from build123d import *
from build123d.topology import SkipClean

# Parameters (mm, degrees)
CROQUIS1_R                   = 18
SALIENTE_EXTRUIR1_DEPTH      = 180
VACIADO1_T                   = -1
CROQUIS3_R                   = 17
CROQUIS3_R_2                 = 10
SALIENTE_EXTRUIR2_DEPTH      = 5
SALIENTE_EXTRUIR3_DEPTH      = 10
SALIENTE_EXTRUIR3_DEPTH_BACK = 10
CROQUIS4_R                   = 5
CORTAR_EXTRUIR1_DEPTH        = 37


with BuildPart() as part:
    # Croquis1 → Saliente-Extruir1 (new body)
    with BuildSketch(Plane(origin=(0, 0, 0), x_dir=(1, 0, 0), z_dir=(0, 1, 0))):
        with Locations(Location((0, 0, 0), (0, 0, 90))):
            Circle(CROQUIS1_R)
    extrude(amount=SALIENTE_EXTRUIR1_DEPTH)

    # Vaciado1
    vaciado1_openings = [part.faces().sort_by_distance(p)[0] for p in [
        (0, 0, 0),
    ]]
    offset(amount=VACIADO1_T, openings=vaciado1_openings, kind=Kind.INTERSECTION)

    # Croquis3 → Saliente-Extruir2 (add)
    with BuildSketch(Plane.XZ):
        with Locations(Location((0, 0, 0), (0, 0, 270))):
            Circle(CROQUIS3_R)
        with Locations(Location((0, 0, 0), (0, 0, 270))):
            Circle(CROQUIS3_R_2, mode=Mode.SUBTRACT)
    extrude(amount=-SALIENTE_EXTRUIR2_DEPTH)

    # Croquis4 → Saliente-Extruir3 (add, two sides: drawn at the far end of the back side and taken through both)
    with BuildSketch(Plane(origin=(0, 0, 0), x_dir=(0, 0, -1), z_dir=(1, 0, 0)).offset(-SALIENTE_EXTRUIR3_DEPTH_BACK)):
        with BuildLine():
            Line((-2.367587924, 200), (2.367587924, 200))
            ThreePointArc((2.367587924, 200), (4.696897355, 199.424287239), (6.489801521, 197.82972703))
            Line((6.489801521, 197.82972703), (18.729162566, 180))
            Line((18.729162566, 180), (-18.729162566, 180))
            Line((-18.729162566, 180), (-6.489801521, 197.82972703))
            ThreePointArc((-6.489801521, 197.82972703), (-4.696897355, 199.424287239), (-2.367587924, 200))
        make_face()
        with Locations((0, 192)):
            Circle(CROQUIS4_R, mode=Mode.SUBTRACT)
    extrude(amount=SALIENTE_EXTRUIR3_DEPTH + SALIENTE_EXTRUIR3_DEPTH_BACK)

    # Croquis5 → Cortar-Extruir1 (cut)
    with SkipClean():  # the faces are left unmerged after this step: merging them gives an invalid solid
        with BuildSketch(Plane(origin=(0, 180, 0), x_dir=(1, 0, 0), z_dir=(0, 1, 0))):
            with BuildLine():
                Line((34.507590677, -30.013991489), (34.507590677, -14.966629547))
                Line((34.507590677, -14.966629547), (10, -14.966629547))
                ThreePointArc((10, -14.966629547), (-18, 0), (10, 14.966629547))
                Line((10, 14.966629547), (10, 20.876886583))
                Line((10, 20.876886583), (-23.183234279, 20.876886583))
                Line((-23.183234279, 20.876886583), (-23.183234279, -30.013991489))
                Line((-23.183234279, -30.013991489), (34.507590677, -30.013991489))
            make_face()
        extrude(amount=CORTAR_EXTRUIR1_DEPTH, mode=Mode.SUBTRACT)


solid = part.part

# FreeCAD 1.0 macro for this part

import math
import FreeCAD as App
import Part
import Sketcher
from FreeCAD import Vector
Q = App.Units.Quantity


def faces_at(feature, points):
    """Names of the faces that lie closest to the given points."""
    faces = feature.Shape.Faces
    near = lambda p: min(range(len(faces)), key=lambda i: faces[i].distToShape(Part.Vertex(*p))[0])
    return sorted({f"Face{near(p) + 1}" for p in points})

doc = App.newDocument("Part")
body = doc.addObject("PartDesign::Body", "Body")

# Sketch on XZ plane
sketch1 = body.newObject("Sketcher::SketchObject", "Sketch")
sketch1.AttachmentSupport = (doc.getObject("XZ_Plane"), [""])
sketch1.MapMode = "FlatFace"
sketch1.addGeometry(Part.Circle(Vector(0, 0, 0), Vector(0, 0, 1), 18), False)
sketch1.addConstraint([
    Sketcher.Constraint("Coincident", 0, 3, -1, 1),
    Sketcher.Constraint("Diameter", 0, Q("36 mm")),
])
pad1 = body.newObject("PartDesign::Pad", "Pad")
pad1.Profile = sketch1
pad1.Length = 180
pad1.Reversed = True
doc.recompute()

thickness = body.newObject("PartDesign::Thickness", "Thickness")
thickness.Base = (pad1, faces_at(pad1, [(0, 0, 0)]))
thickness.Value = 1
thickness.Reversed = True
thickness.Join = "Intersection"

# Sketch on XZ plane
sketch2 = body.newObject("Sketcher::SketchObject", "Sketch001")
sketch2.AttachmentSupport = (doc.getObject("XZ_Plane"), [""])
sketch2.MapMode = "FlatFace"
sketch2.addGeometry([
    Part.Circle(Vector(0, 0, 0), Vector(0, 0, 1), 17),
    Part.Circle(Vector(0, 0, 0), Vector(0, 0, 1), 10),
], False)
sketch2.addConstraint([
    Sketcher.Constraint("Coincident", 0, 3, -1, 1),
    Sketcher.Constraint("Coincident", 1, 3, -1, 1),
    Sketcher.Constraint("Diameter", 0, Q("34 mm")),
    Sketcher.Constraint("Diameter", 1, Q("20 mm")),
])
pad2 = body.newObject("PartDesign::Pad", "Pad001")
pad2.Profile = sketch2
pad2.Length = 5
pad2.Reversed = True

# Sketch on YZ plane
sketch3 = body.newObject("Sketcher::SketchObject", "Sketch002")
sketch3.AttachmentSupport = (doc.getObject("YZ_Plane"), [""])
sketch3.MapMode = "FlatFace"
sketch3.addGeometry([
    Part.LineSegment(Vector(200, -2.4, 0), Vector(200, 2.4, 0)),  # 0
    Part.ArcOfCircle(Part.Circle(Vector(195, 2.4, 0), Vector(0, 0, 1), 5), math.radians(0), math.radians(56)),  # 1
    Part.LineSegment(Vector(197.8, 6.5, 0), Vector(180, 18.7, 0)),  # 2
    Part.LineSegment(Vector(180, 18.7, 0), Vector(180, -18.7, 0)),  # 3
    Part.LineSegment(Vector(180, -18.7, 0), Vector(197.8, -6.5, 0)),  # 4
    Part.ArcOfCircle(Part.Circle(Vector(195, -2.4, 0), Vector(0, 0, 1), 5), math.radians(-56), math.radians(0)),  # 5
    Part.Circle(Vector(192, 0, 0), Vector(0, 0, 1), 5),  # 6
], False)
sketch3.addConstraint([
    Sketcher.Constraint("Tangent", 0, 2, 1, 1),
    Sketcher.Constraint("Tangent", 1, 2, 2, 1),
    Sketcher.Constraint("Coincident", 2, 2, 3, 1),
    Sketcher.Constraint("Coincident", 3, 2, 4, 1),
    Sketcher.Constraint("Tangent", 4, 2, 5, 1),
    Sketcher.Constraint("Tangent", 5, 2, 0, 1),
    Sketcher.Constraint("Vertical", 0),
    Sketcher.Constraint("Vertical", 3),
    Sketcher.Constraint("Equal", 1, 5),
    Sketcher.Constraint("Equal", 5, 6),
    Sketcher.Constraint("Symmetric", 1, 2, 4, 2, -1),
    Sketcher.Constraint("PointOnObject", 6, 3, -1),
    Sketcher.Constraint("Diameter", 6, Q("10 mm")),
    Sketcher.Constraint("DistanceX", -1, 1, 1, 3, Q("195 mm")),
    Sketcher.Constraint("DistanceX", -1, 1, 6, 3, Q("192 mm")),
    Sketcher.Constraint("DistanceX", -1, 1, 2, 2, Q("180 mm")),
    Sketcher.Constraint("Distance", 2, Q("21.626399 mm")),
    Sketcher.Constraint("DistanceY", -1, 1, 1, 2, Q("6.489802 mm")),
])
pad3 = body.newObject("PartDesign::Pad", "Pad002")
pad3.Profile = sketch3
pad3.Type = "TwoLengths"
pad3.Length = 10
pad3.Length2 = 10

# Sketch on XZ plane
sketch4 = body.newObject("Sketcher::SketchObject", "Sketch003")
sketch4.AttachmentSupport = (doc.getObject("XZ_Plane"), [""])
sketch4.MapMode = "FlatFace"
sketch4.AttachmentOffset = App.Placement(Vector(0, 0, -180), App.Rotation())
sketch4.addGeometry([
    Part.LineSegment(Vector(35, 30, 0), Vector(35, 15, 0)),  # 0
    Part.LineSegment(Vector(35, 15, 0), Vector(10, 15, 0)),  # 1
    Part.ArcOfCircle(Part.Circle(Vector(0, 0, 0), Vector(0, 0, 1), 18), math.radians(56), math.radians(304)),  # 2
    Part.LineSegment(Vector(10, -15, 0), Vector(10, -21, 0)),  # 3
    Part.LineSegment(Vector(10, -21, 0), Vector(-23, -21, 0)),  # 4
    Part.LineSegment(Vector(-23, -21, 0), Vector(-23, 30, 0)),  # 5
    Part.LineSegment(Vector(-23, 30, 0), Vector(35, 30, 0)),  # 6
], False)
sketch4.addConstraint([
    Sketcher.Constraint("Coincident", 0, 2, 1, 1),
    Sketcher.Constraint("Coincident", 1, 2, 2, 1),
    Sketcher.Constraint("Coincident", 2, 2, 3, 1),
    Sketcher.Constraint("Coincident", 3, 2, 4, 1),
    Sketcher.Constraint("Coincident", 4, 2, 5, 1),
    Sketcher.Constraint("Coincident", 5, 2, 6, 1),
    Sketcher.Constraint("Coincident", 6, 2, 0, 1),
    Sketcher.Constraint("Vertical", 0),
    Sketcher.Constraint("Horizontal", 1),
    Sketcher.Constraint("Vertical", 3),
    Sketcher.Constraint("Horizontal", 4),
    Sketcher.Constraint("Vertical", 5),
    Sketcher.Constraint("Horizontal", 6),
    Sketcher.Constraint("Coincident", 2, 3, -1, 1),
    Sketcher.Constraint("Vertical", 1, 2, 2, 2),
    Sketcher.Constraint("Radius", 2, Q("18 mm")),
    Sketcher.Constraint("DistanceX", -1, 1, 1, 2, Q("10 mm")),
    Sketcher.Constraint("DistanceX", 1, 2, 1, 1, Q("24.507591 mm")),
    Sketcher.Constraint("DistanceY", 0, 2, 0, 1, Q("15.047362 mm")),
    Sketcher.Constraint("DistanceY", 5, 1, 5, 2, Q("50.890878 mm")),
    Sketcher.Constraint("DistanceX", 4, 2, 4, 1, Q("33.183234 mm")),
])
pocket1 = body.newObject("PartDesign::Pocket", "Pocket")
pocket1.Profile = sketch4
pocket1.Length = 37

doc.recompute()
